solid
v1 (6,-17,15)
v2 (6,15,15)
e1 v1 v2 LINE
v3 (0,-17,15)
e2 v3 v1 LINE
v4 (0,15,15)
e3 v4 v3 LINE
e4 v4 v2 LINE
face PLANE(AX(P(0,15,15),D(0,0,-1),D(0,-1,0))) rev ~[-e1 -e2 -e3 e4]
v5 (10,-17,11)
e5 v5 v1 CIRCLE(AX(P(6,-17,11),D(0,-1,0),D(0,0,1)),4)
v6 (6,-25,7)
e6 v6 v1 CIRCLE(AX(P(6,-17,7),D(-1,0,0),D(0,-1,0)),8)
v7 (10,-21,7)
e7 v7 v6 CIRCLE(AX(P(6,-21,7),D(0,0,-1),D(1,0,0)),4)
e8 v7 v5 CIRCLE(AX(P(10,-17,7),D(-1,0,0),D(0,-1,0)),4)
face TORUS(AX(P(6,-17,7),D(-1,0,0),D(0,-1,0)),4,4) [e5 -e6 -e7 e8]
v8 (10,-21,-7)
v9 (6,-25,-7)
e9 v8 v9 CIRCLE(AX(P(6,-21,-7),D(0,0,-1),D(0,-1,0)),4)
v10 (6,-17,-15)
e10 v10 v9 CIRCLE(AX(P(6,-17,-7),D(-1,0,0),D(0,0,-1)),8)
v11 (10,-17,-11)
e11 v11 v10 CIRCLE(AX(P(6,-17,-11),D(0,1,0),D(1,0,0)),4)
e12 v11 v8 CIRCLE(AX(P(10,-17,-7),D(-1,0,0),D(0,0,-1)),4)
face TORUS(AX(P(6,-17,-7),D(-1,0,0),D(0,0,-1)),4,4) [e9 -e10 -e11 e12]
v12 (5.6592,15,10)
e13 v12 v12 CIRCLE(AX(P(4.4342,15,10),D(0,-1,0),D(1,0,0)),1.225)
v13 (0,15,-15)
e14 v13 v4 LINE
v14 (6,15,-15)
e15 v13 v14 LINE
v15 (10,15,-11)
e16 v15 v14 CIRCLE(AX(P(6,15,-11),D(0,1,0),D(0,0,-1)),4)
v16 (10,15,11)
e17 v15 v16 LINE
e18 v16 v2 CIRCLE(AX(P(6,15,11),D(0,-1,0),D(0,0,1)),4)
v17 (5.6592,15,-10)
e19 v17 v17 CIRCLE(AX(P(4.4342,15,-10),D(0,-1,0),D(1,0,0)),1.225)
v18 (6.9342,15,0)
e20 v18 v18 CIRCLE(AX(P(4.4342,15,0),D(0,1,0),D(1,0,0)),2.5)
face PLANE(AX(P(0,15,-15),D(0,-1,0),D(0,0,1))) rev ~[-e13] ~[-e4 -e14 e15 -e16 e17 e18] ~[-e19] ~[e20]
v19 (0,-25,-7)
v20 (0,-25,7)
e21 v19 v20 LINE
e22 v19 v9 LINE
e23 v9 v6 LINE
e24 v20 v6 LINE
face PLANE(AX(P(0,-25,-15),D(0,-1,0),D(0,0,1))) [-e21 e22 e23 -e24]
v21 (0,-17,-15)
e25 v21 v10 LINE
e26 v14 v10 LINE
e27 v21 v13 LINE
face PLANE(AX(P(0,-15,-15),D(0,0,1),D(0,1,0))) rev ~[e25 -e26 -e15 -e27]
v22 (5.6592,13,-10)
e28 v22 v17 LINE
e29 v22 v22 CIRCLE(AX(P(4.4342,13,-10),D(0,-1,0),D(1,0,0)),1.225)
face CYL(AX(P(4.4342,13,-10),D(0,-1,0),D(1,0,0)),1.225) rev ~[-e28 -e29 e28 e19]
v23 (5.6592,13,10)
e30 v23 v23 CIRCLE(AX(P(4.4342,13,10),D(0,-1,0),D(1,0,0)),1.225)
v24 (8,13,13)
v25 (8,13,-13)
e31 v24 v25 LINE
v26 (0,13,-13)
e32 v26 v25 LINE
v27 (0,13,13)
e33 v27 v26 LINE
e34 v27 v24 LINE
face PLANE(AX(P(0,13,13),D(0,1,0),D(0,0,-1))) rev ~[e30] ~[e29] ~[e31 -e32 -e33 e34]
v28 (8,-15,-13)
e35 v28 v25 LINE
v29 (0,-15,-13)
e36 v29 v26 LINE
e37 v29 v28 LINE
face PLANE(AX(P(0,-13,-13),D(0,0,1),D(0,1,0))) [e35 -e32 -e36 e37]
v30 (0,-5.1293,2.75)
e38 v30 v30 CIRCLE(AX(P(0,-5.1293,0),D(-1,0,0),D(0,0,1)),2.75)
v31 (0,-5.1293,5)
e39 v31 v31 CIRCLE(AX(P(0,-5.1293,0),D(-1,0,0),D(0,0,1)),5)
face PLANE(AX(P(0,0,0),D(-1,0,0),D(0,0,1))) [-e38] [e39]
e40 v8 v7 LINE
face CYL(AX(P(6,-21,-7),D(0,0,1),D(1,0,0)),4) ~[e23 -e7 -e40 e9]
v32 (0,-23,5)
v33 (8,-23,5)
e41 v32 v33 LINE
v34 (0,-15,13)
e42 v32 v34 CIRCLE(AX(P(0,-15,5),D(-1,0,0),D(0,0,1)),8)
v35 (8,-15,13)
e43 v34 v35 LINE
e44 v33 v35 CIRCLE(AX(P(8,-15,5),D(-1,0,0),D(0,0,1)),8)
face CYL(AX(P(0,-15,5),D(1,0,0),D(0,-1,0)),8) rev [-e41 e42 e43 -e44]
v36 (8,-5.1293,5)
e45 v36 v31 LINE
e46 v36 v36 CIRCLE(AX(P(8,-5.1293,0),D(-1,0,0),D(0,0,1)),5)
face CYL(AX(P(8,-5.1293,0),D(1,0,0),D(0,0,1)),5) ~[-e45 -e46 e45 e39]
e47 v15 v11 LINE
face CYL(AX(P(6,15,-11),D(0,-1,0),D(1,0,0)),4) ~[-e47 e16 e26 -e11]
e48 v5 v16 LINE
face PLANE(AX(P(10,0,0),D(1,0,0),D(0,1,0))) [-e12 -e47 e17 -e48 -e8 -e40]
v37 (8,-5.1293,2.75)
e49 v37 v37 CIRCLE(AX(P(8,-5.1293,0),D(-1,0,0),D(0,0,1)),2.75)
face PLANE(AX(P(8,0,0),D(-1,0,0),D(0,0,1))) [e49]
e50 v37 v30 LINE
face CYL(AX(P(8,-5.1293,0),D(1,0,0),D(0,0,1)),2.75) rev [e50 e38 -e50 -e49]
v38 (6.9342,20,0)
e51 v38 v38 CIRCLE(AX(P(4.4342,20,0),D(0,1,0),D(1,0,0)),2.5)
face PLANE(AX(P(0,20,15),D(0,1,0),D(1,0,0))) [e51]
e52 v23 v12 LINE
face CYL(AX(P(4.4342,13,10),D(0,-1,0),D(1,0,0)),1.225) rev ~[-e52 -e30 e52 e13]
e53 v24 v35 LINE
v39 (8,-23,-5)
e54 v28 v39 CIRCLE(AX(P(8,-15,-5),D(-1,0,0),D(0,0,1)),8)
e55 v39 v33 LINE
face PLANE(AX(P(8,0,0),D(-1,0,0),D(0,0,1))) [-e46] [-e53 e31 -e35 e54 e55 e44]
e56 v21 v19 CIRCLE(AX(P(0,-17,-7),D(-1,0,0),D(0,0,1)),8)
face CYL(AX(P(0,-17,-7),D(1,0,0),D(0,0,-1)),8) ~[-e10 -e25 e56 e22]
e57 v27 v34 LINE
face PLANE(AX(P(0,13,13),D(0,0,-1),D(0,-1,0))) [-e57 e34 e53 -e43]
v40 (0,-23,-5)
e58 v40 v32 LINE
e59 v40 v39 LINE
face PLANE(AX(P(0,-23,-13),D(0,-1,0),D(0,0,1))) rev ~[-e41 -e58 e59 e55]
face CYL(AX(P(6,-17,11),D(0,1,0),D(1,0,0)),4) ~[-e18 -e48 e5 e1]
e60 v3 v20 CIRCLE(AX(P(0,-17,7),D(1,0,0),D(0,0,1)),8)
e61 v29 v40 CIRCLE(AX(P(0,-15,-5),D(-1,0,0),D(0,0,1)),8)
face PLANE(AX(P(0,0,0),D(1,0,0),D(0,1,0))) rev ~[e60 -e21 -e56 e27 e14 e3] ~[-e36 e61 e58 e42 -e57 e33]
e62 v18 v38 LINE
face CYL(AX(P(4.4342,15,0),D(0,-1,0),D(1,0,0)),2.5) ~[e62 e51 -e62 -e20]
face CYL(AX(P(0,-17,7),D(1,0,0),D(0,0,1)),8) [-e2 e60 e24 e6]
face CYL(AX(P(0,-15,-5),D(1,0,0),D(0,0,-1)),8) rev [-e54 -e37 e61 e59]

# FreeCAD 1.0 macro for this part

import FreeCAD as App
import Part
import Sketcher
Q = App.Units.Quantity


def edges_at(feature, points):
    """Names of the edges that pass closest to the given points."""
    edges = feature.Shape.Edges
    near = lambda p: min(range(len(edges)), key=lambda i: edges[i].distToShape(Part.Vertex(*p))[0])
    return sorted({f"Edge{near(p) + 1}" for p in points})

doc = App.newDocument("Part")
params = doc.addObject("Spreadsheet::Sheet", "Params")
for row, (alias, value) in enumerate([
    ("sketch1_height", "30 mm"),
    ("sketch1_width", "40 mm"),
    ("pad1_length", "10 mm"),
    ("sketch2_width", "36 mm"),
    ("sketch2_height", "26 mm"),
    ("pocket1_length", "8 mm"),
    ("sketch3_diameter", "5 mm"),
    ("pad2_length", "5 mm"),
    ("sketch4_diameter", "2.45 mm"),
    ("pocket2_length", "2 mm"),
    ("fillet_radius", "8 mm"),
    ("fillet2_radius", "4 mm"),
    ("sketch5_diameter", "10 mm"),
    ("sketch5_diameter2", "5.5 mm"),
    ("pad3_length", "8 mm"),
], start=1):
    params.set(f"A{row}", alias)
    params.set(f"B{row}", "=" + value)
    params.setAlias(f"B{row}", alias)

body = doc.addObject("PartDesign::Body", "Body")

# Sketch on YZ plane
sketch1 = body.newObject("Sketcher::SketchObject", "Sketch")
sketch1.AttachmentSupport = (doc.getObject("YZ_Plane"), [""])
sketch1.MapMode = "FlatFace"
sketch1.addGeometry([
    Part.LineSegment(App.Vector(15, -15, 0), App.Vector(15, 15, 0)),
    Part.LineSegment(App.Vector(15, 15, 0), App.Vector(-25, 15, 0)),
    Part.LineSegment(App.Vector(-25, 15, 0), App.Vector(-25, -15, 0)),
    Part.LineSegment(App.Vector(-25, -15, 0), App.Vector(15, -15, 0)),
], False)
sketch1.addConstraint([
    Sketcher.Constraint("Coincident", 0, 2, 1, 1),
    Sketcher.Constraint("Coincident", 1, 2, 2, 1),
    Sketcher.Constraint("Coincident", 2, 2, 3, 1),
    Sketcher.Constraint("Coincident", 3, 2, 0, 1),
    Sketcher.Constraint("Vertical", 0),
    Sketcher.Constraint("Horizontal", 1),
    Sketcher.Constraint("Vertical", 2),
    Sketcher.Constraint("Horizontal", 3),
    Sketcher.Constraint("DistanceY", 0, 1, 0, 2, Q("30 mm")),
    Sketcher.Constraint("DistanceX", 1, 2, 1, 1, Q("40 mm")),
    Sketcher.Constraint("DistanceX", -1, 1, 0, 2, Q("15 mm")),
    Sketcher.Constraint("DistanceY", -1, 1, 0, 2, Q("15 mm")),
])
sketch1.setExpression("Constraints[8]", "Params.sketch1_height")
sketch1.setExpression("Constraints[9]", "Params.sketch1_width")
pad1 = body.newObject("PartDesign::Pad", "Pad")
pad1.Profile = sketch1
pad1.setExpression("Length", "Params.pad1_length")

# Sketch on YZ plane
sketch2 = body.newObject("Sketcher::SketchObject", "Sketch001")
sketch2.AttachmentSupport = (doc.getObject("YZ_Plane"), [""])
sketch2.MapMode = "FlatFace"
sketch2.addGeometry([
    Part.LineSegment(App.Vector(13, -13, 0), App.Vector(-23, -13, 0)),
    Part.LineSegment(App.Vector(-23, -13, 0), App.Vector(-23, 13, 0)),
    Part.LineSegment(App.Vector(-23, 13, 0), App.Vector(13, 13, 0)),
    Part.LineSegment(App.Vector(13, 13, 0), App.Vector(13, -13, 0)),
], False)
sketch2.addConstraint([
    Sketcher.Constraint("Coincident", 0, 2, 1, 1),
    Sketcher.Constraint("Coincident", 1, 2, 2, 1),
    Sketcher.Constraint("Coincident", 2, 2, 3, 1),
    Sketcher.Constraint("Coincident", 3, 2, 0, 1),
    Sketcher.Constraint("Horizontal", 0),
    Sketcher.Constraint("Vertical", 1),
    Sketcher.Constraint("Horizontal", 2),
    Sketcher.Constraint("Vertical", 3),
    Sketcher.Constraint("DistanceX", 0, 2, 0, 1, Q("36 mm")),
    Sketcher.Constraint("DistanceY", 1, 1, 1, 2, Q("26 mm")),
    Sketcher.Constraint("DistanceX", 0, 2, -1, 1, Q("23 mm")),
    Sketcher.Constraint("DistanceY", 0, 2, -1, 1, Q("13 mm")),
])
sketch2.setExpression("Constraints[8]", "Params.sketch2_width")
sketch2.setExpression("Constraints[9]", "Params.sketch2_height")
pocket1 = body.newObject("PartDesign::Pocket", "Pocket")
pocket1.Profile = sketch2
pocket1.setExpression("Length", "Params.pocket1_length")
pocket1.Reversed = True

# Sketch on XZ plane
sketch3 = body.newObject("Sketcher::SketchObject", "Sketch002")
sketch3.AttachmentSupport = (doc.getObject("XZ_Plane"), [""])
sketch3.MapMode = "FlatFace"
sketch3.AttachmentOffset = App.Placement(App.Vector(0, 0, -15), App.Rotation())
sketch3.addGeometry(Part.Circle(App.Vector(4.4, 0, 0), App.Vector(0, 0, 1), 2.5), False)
sketch3.addConstraint([
    Sketcher.Constraint("PointOnObject", 0, 3, -1),
    Sketcher.Constraint("Diameter", 0, Q("5 mm")),
    Sketcher.Constraint("DistanceX", -1, 1, 0, 3, Q("4.4342 mm")),
])
sketch3.setExpression("Constraints[1]", "Params.sketch3_diameter")
pad2 = body.newObject("PartDesign::Pad", "Pad001")
pad2.Profile = sketch3
pad2.setExpression("Length", "Params.pad2_length")
pad2.Reversed = True

# Sketch on XZ plane
sketch4 = body.newObject("Sketcher::SketchObject", "Sketch003")
sketch4.AttachmentSupport = (doc.getObject("XZ_Plane"), [""])
sketch4.MapMode = "FlatFace"
sketch4.AttachmentOffset = App.Placement(App.Vector(0, 0, -13), App.Rotation())
sketch4.addGeometry([
    Part.Circle(App.Vector(4.4, 10, 0), App.Vector(0, 0, 1), 1.2),
    Part.Circle(App.Vector(4.4, -10, 0), App.Vector(0, 0, 1), 1.2),
], False)
sketch4.addConstraint([
    Sketcher.Constraint("Equal", 0, 1),
    Sketcher.Constraint("Symmetric", 0, 3, 1, 3, -1),
    Sketcher.Constraint("Diameter", 0, Q("2.45 mm")),
    Sketcher.Constraint("DistanceY", -1, 1, 0, 3, Q("10 mm")),
    Sketcher.Constraint("DistanceX", -1, 1, 0, 3, Q("4.4342 mm")),
])
sketch4.setExpression("Constraints[2]", "Params.sketch4_diameter")
pocket2 = body.newObject("PartDesign::Pocket", "Pocket001")
pocket2.Profile = sketch4
pocket2.setExpression("Length", "Params.pocket2_length")
doc.recompute()

fillet = body.newObject("PartDesign::Fillet", "Fillet")
fillet.Base = (pocket2, edges_at(pocket2, [
    (4, -23, 13),
    (4, -23, -13),
    (5, -25, -15),
    (5, -25, 15),
]))
fillet.setExpression("Radius", "Params.fillet_radius")
doc.recompute()

fillet2 = body.newObject("PartDesign::Fillet", "Fillet001")
fillet2.Base = (fillet, edges_at(fillet, [
    (10, -25, 0),
    (10, -22.657, 12.657),
    (10, -1, -15),
    (10, -22.657, -12.657),
]))
fillet2.setExpression("Radius", "Params.fillet2_radius")

# Sketch on YZ plane
sketch5 = body.newObject("Sketcher::SketchObject", "Sketch004")
sketch5.AttachmentSupport = (doc.getObject("YZ_Plane"), [""])
sketch5.MapMode = "FlatFace"
sketch5.AttachmentOffset = App.Placement(App.Vector(0, 0, 8), App.Rotation())
sketch5.addGeometry([
    Part.Circle(App.Vector(-5.1, 0, 0), App.Vector(0, 0, 1), 5),
    Part.Circle(App.Vector(-5.1, 0, 0), App.Vector(0, 0, 1), 2.8),
], False)
sketch5.addConstraint([
    Sketcher.Constraint("Coincident", 1, 3, 0, 3),
    Sketcher.Constraint("PointOnObject", 0, 3, -1),
    Sketcher.Constraint("Diameter", 0, Q("10 mm")),
    Sketcher.Constraint("Diameter", 1, Q("5.5 mm")),
    Sketcher.Constraint("DistanceX", 0, 3, -1, 1, Q("5.1293 mm")),
])
sketch5.setExpression("Constraints[2]", "Params.sketch5_diameter")
sketch5.setExpression("Constraints[3]", "Params.sketch5_diameter2")
pad3 = body.newObject("PartDesign::Pad", "Pad002")
pad3.Profile = sketch5
pad3.setExpression("Length", "Params.pad3_length")
pad3.Reversed = True

doc.recompute()
